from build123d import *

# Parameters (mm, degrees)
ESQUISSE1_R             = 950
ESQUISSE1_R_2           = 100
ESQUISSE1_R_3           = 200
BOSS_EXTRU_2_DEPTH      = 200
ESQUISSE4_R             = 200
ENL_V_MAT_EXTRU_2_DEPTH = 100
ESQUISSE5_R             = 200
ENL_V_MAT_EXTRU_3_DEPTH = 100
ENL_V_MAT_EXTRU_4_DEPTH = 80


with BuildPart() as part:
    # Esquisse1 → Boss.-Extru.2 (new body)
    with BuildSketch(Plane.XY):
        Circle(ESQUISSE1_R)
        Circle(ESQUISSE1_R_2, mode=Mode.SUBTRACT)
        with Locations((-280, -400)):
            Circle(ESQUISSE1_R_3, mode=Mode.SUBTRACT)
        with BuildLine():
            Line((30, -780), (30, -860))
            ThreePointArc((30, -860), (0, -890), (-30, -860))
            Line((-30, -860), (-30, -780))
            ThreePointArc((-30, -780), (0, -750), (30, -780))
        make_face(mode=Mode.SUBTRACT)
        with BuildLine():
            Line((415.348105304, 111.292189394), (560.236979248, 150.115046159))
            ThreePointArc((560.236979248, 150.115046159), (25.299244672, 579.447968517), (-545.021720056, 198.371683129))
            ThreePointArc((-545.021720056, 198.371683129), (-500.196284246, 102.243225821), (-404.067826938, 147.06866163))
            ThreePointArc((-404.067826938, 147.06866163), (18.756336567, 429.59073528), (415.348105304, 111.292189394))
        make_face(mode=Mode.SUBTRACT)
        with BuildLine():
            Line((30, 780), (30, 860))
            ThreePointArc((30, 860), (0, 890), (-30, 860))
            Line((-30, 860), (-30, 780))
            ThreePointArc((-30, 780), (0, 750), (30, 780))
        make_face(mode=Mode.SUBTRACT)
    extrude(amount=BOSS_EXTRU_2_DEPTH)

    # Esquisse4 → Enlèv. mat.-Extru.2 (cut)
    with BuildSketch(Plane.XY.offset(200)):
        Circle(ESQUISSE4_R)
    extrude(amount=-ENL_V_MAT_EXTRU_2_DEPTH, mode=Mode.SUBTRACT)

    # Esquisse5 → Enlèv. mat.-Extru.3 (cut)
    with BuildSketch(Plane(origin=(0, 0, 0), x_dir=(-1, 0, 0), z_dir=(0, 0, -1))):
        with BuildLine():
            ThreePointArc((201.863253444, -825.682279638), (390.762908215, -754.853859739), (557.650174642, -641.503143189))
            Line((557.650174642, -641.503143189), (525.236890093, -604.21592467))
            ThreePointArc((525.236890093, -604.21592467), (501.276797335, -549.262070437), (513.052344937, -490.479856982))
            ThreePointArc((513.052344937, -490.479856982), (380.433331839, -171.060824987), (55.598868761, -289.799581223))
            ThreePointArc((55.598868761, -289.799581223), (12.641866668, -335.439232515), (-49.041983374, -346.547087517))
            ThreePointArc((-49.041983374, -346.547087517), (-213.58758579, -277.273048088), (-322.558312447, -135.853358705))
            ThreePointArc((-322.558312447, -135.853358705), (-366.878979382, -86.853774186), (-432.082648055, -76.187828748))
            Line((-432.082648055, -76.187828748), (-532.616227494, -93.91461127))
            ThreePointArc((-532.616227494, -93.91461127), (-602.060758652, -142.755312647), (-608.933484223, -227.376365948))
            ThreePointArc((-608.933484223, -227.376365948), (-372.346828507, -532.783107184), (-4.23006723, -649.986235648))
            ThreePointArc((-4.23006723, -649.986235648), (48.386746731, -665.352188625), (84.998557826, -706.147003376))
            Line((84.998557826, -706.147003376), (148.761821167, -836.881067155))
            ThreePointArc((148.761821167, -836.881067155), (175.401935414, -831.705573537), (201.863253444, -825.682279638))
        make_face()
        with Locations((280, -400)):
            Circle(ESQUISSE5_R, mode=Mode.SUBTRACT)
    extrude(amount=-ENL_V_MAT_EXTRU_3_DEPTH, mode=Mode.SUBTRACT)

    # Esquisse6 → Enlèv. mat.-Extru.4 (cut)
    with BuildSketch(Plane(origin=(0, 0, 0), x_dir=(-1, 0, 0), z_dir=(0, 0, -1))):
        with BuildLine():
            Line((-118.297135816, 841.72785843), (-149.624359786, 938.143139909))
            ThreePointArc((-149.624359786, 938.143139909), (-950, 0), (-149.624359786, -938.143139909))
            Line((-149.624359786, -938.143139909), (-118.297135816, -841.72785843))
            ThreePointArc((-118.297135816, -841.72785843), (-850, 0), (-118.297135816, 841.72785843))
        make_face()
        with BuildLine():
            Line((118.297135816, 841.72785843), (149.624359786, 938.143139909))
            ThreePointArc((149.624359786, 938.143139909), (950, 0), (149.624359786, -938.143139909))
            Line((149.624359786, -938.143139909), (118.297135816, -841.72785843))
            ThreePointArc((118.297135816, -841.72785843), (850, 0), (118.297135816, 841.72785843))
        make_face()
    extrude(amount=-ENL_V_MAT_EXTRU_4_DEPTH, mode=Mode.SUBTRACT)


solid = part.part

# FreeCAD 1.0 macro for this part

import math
import FreeCAD as App
import Part
import Sketcher
Q = App.Units.Quantity

doc = App.newDocument("Part")
params = doc.addObject("Spreadsheet::Sheet", "Params")
for row, (alias, value) in enumerate([
    ("sketch1_diameter", "1900 mm"),
    ("sketch1_diameter2", "400 mm"),
    ("sketch1_diameter3", "200 mm"),
    ("sketch1_radius", "30 mm"),
    ("sketch1_radius2", "430 mm"),
    ("pad1_length", "200 mm"),
    ("sketch2_diameter", "400 mm"),
    ("pocket1_length", "100 mm"),
    ("sketch3_diameter", "400 mm"),
    ("sketch3_radius", "850 mm"),
    ("sketch3_radius2", "100 mm"),
    ("sketch3_radius3", "250 mm"),
    ("sketch3_radius4", "350 mm"),
    ("pocket2_length", "100 mm"),
    ("sketch4_radius", "950 mm"),
    ("sketch4_radius2", "850 mm"),
    ("pocket3_length", "80 mm"),
], start=1):
    params.set(f"A{row}", alias)
    params.set(f"B{row}", "=" + value)
    params.setAlias(f"B{row}", alias)

body = doc.addObject("PartDesign::Body", "Body")

sketch1 = doc.addObject("Sketcher::SketchObject", "Sketch")
body.addObject(sketch1)
sketch1.AttachmentSupport = (doc.XY_Plane, [""])
sketch1.MapMode = "FlatFace"
sketch1.addGeometry(Part.Circle(App.Vector(0, 0, 0), App.Vector(0, 0, 1), 950), False)
sketch1.addGeometry(Part.ArcOfCircle(Part.Circle(App.Vector(0, -780, 0), App.Vector(0, 0, 1), 30), math.radians(0), math.radians(180)), False)
sketch1.addGeometry(Part.LineSegment(App.Vector(30, -780, 0), App.Vector(30, -860, 0)), False)
sketch1.addGeometry(Part.ArcOfCircle(Part.Circle(App.Vector(0, -860, 0), App.Vector(0, 0, 1), 30), math.radians(180), math.radians(360)), False)
sketch1.addGeometry(Part.LineSegment(App.Vector(-30, -860, 0), App.Vector(-30, -780, 0)), False)
sketch1.addGeometry(Part.Circle(App.Vector(-280, -400, 0), App.Vector(0, 0, 1), 200), False)
sketch1.addGeometry(Part.Circle(App.Vector(0, 0, 0), App.Vector(0, 0, 1), 100), False)
sketch1.addGeometry(Part.LineSegment(App.Vector(30, 860, 0), App.Vector(30, 780, 0)), False)
sketch1.addGeometry(Part.ArcOfCircle(Part.Circle(App.Vector(0, 780, 0), App.Vector(0, 0, 1), 30), math.radians(180), math.radians(360)), False)
sketch1.addGeometry(Part.LineSegment(App.Vector(-30, 780, 0), App.Vector(-30, 860, 0)), False)
sketch1.addGeometry(Part.ArcOfCircle(Part.Circle(App.Vector(0, 860, 0), App.Vector(0, 0, 1), 30), math.radians(0), math.radians(180)), False)
sketch1.addGeometry(Part.LineSegment(App.Vector(560, 150, 0), App.Vector(415, 111, 0)), False)
sketch1.addGeometry(Part.ArcOfCircle(Part.Circle(App.Vector(0, 0, 0), App.Vector(0, 0, 1), 430), math.radians(15), math.radians(160)), False)
sketch1.addGeometry(Part.ArcOfCircle(Part.Circle(App.Vector(-475, 173, 0), App.Vector(0, 0, 1), 75), math.radians(160), math.radians(340)), False)
sketch1.addGeometry(Part.ArcOfCircle(Part.Circle(App.Vector(0, 0, 0), App.Vector(0, 0, 1), 580), math.radians(15), math.radians(160)), False)
sketch1.addConstraint(Sketcher.Constraint("Tangent", 1, 1, 2, 1))
sketch1.addConstraint(Sketcher.Constraint("Tangent", 2, 2, 3, 2))
sketch1.addConstraint(Sketcher.Constraint("Tangent", 3, 1, 4, 1))
sketch1.addConstraint(Sketcher.Constraint("Tangent", 4, 2, 1, 2))
sketch1.addConstraint(Sketcher.Constraint("Tangent", 7, 2, 8, 2))
sketch1.addConstraint(Sketcher.Constraint("Tangent", 8, 1, 9, 1))
sketch1.addConstraint(Sketcher.Constraint("Tangent", 9, 2, 10, 2))
sketch1.addConstraint(Sketcher.Constraint("Tangent", 10, 1, 7, 1))
sketch1.addConstraint(Sketcher.Constraint("Coincident", 11, 2, 12, 1))
sketch1.addConstraint(Sketcher.Constraint("Tangent", 12, 2, 13, 2))
sketch1.addConstraint(Sketcher.Constraint("Tangent", 13, 1, 14, 2))
sketch1.addConstraint(Sketcher.Constraint("Coincident", 14, 1, 11, 1))
sketch1.addConstraint(Sketcher.Constraint("Vertical", 2))
sketch1.addConstraint(Sketcher.Constraint("Vertical", 4))
sketch1.addConstraint(Sketcher.Constraint("Vertical", 7))
sketch1.addConstraint(Sketcher.Constraint("Vertical", 9))
sketch1.addConstraint(Sketcher.Constraint("Coincident", 0, 3, -1, 1))
sketch1.addConstraint(Sketcher.Constraint("Coincident", 6, 3, -1, 1))
sketch1.addConstraint(Sketcher.Constraint("Coincident", 12, 3, -1, 1))
sketch1.addConstraint(Sketcher.Constraint("Coincident", 14, 3, -1, 1))
sketch1.addConstraint(Sketcher.Constraint("Equal", 3, 8))
sketch1.addConstraint(Sketcher.Constraint("Symmetric", 1, 3, 8, 3, -1, 1))
sketch1.addConstraint(Sketcher.Constraint("Symmetric", 3, 3, 10, 3, -1))
sketch1.addConstraint(Sketcher.Constraint("Diameter", 0, 1900.0))
sketch1.addConstraint(Sketcher.Constraint("Diameter", 5, 400.0))
sketch1.addConstraint(Sketcher.Constraint("Diameter", 6, 200.0))
sketch1.addConstraint(Sketcher.Constraint("Radius", 1, 30.0))
sketch1.addConstraint(Sketcher.Constraint("Radius", 12, 430.0))
sketch1.addConstraint(Sketcher.Constraint("Radius", 13, 75.0))
sketch1.addConstraint(Sketcher.Constraint("DistanceY", 2, 2, 2, 1, 80.0))
sketch1.addConstraint(Sketcher.Constraint("Angle", 11, Q("-165 deg")))
sketch1.addConstraint(Sketcher.Constraint("DistanceY", 1, 3, -1, 1, 780.0))
sketch1.addConstraint(Sketcher.Constraint("DistanceX", 5, 3, -1, 1, 280.0))
sketch1.addConstraint(Sketcher.Constraint("DistanceY", 5, 3, -1, 1, 400.0))
sketch1.addConstraint(Sketcher.Constraint("DistanceY", -1, 1, 11, 2, 111.292189))
sketch1.addConstraint(Sketcher.Constraint("DistanceX", 13, 1, -1, 1, 545.02172))
sketch1.setExpression("Constraints[23]", "Params.sketch1_diameter")
sketch1.setExpression("Constraints[24]", "Params.sketch1_diameter2")
sketch1.setExpression("Constraints[25]", "Params.sketch1_diameter3")
sketch1.setExpression("Constraints[26]", "Params.sketch1_radius")
sketch1.setExpression("Constraints[27]", "Params.sketch1_radius2")
pad1 = doc.addObject("PartDesign::Pad", "Pad")
body.addObject(pad1)
pad1.Profile = sketch1
pad1.setExpression("Length", "Params.pad1_length")

sketch2 = doc.addObject("Sketcher::SketchObject", "Sketch001")
body.addObject(sketch2)
sketch2.AttachmentSupport = (doc.XY_Plane, [""])
sketch2.MapMode = "FlatFace"
sketch2.AttachmentOffset = App.Placement(App.Vector(0, 0, 200), App.Rotation())
sketch2.addGeometry(Part.Circle(App.Vector(0, 0, 0), App.Vector(0, 0, 1), 200), False)
sketch2.addConstraint(Sketcher.Constraint("Coincident", 0, 3, -1, 1))
sketch2.addConstraint(Sketcher.Constraint("Diameter", 0, 400.0))
sketch2.setExpression("Constraints[1]", "Params.sketch2_diameter")
pocket1 = doc.addObject("PartDesign::Pocket", "Pocket")
body.addObject(pocket1)
pocket1.Profile = sketch2
pocket1.setExpression("Length", "Params.pocket1_length")

sketch3 = doc.addObject("Sketcher::SketchObject", "Sketch002")
body.addObject(sketch3)
sketch3.AttachmentSupport = (doc.XY_Plane, [""])
sketch3.MapMode = "FlatFace"
sketch3.addGeometry(Part.ArcOfCircle(Part.Circle(App.Vector(0, 0, 0), App.Vector(0, 0, 1), 850), math.radians(-131), math.radians(-104)), False)
sketch3.addGeometry(Part.LineSegment(App.Vector(-558, -642, 0), App.Vector(-525, -604, 0)), False)
sketch3.addGeometry(Part.ArcOfCircle(Part.Circle(App.Vector(-601, -539, 0), App.Vector(0, 0, 1), 100), math.radians(-41), math.radians(29)), False)
sketch3.addGeometry(Part.ArcOfCircle(Part.Circle(App.Vector(-280, -400, 0), App.Vector(0, 0, 1), 250), math.radians(26), math.radians(201)), False)
sketch3.addGeometry(Part.ArcOfCircle(Part.Circle(App.Vector(35, -248, 0), App.Vector(0, 0, 1), 100), math.radians(-155), math.radians(-82)), False)
sketch3.addGeometry(Part.ArcOfCircle(Part.Circle(App.Vector(0, 0, 0), App.Vector(0, 0, 1), 350), math.radians(-82), math.radians(-23)), False)
sketch3.addGeometry(Part.ArcOfCircle(Part.Circle(App.Vector(415, -175, 0), App.Vector(0, 0, 1), 100), math.radians(80), math.radians(157)), False)
sketch3.addGeometry(Part.LineSegment(App.Vector(432, -76, 0), App.Vector(533, -94, 0)), False)
sketch3.addGeometry(Part.ArcOfCircle(Part.Circle(App.Vector(515, -192, 0), App.Vector(0, 0, 1), 100), math.radians(-20), math.radians(80)), False)
sketch3.addGeometry(Part.ArcOfCircle(Part.Circle(App.Vector(0, 0, 0), App.Vector(0, 0, 1), 650), math.radians(-90), math.radians(-20)), False)
sketch3.addGeometry(Part.ArcOfCircle(Part.Circle(App.Vector(5, -750, 0), App.Vector(0, 0, 1), 100), math.radians(90), math.radians(154)), False)
sketch3.addGeometry(Part.LineSegment(App.Vector(-85, -706, 0), App.Vector(-149, -837, 0)), False)
sketch3.addGeometry(Part.ArcOfCircle(Part.Circle(App.Vector(0, 0, 0), App.Vector(0, 0, 1), 850), math.radians(-103.74), math.radians(-100.08)), False)
sketch3.addGeometry(Part.Circle(App.Vector(-280, -400, 0), App.Vector(0, 0, 1), 200), False)
sketch3.addConstraint(Sketcher.Constraint("Coincident", 0, 1, 1, 1))
sketch3.addConstraint(Sketcher.Constraint("Tangent", 1, 2, 2, 1))
sketch3.addConstraint(Sketcher.Constraint("Coincident", 2, 2, 3, 2))
sketch3.addConstraint(Sketcher.Constraint("Coincident", 3, 1, 4, 1))
sketch3.addConstraint(Sketcher.Constraint("Tangent", 4, 2, 5, 1))
sketch3.addConstraint(Sketcher.Constraint("Tangent", 5, 2, 6, 2))
sketch3.addConstraint(Sketcher.Constraint("Tangent", 6, 1, 7, 1))
sketch3.addConstraint(Sketcher.Constraint("Tangent", 7, 2, 8, 2))
sketch3.addConstraint(Sketcher.Constraint("Tangent", 8, 1, 9, 2))
sketch3.addConstraint(Sketcher.Constraint("Tangent", 9, 1, 10, 1))
sketch3.addConstraint(Sketcher.Constraint("Tangent", 10, 2, 11, 1))
sketch3.addConstraint(Sketcher.Constraint("Coincident", 11, 2, 12, 2))
sketch3.addConstraint(Sketcher.Constraint("Coincident", 12, 1, 0, 2))
sketch3.addConstraint(Sketcher.Constraint("Coincident", 0, 3, -1, 1))
sketch3.addConstraint(Sketcher.Constraint("Coincident", 5, 3, -1, 1))
sketch3.addConstraint(Sketcher.Constraint("Coincident", 9, 3, -1, 1))
sketch3.addConstraint(Sketcher.Constraint("Coincident", 12, 3, -1, 1))
sketch3.addConstraint(Sketcher.Constraint("Coincident", 13, 3, 3, 3))
sketch3.addConstraint(Sketcher.Constraint("Equal", 2, 4))
sketch3.addConstraint(Sketcher.Constraint("Equal", 4, 6))
sketch3.addConstraint(Sketcher.Constraint("Equal", 6, 8))
sketch3.addConstraint(Sketcher.Constraint("Equal", 8, 10))
sketch3.addConstraint(Sketcher.Constraint("Diameter", 13, 400.0))
sketch3.addConstraint(Sketcher.Constraint("Radius", 0, 850.0))
sketch3.addConstraint(Sketcher.Constraint("Radius", 2, 100.0))
sketch3.addConstraint(Sketcher.Constraint("Radius", 3, 250.0))
sketch3.addConstraint(Sketcher.Constraint("Radius", 5, 350.0))
sketch3.addConstraint(Sketcher.Constraint("Radius", 9, 650.0))
sketch3.addConstraint(Sketcher.Constraint("Angle", 1, Q("49 deg")))
sketch3.addConstraint(Sketcher.Constraint("Angle", 7, Q("-10 deg")))
sketch3.addConstraint(Sketcher.Constraint("Angle", 11, Q("-116 deg")))
sketch3.addConstraint(Sketcher.Constraint("DistanceX", 3, 3, -1, 1, 280.0))
sketch3.addConstraint(Sketcher.Constraint("DistanceY", 3, 3, -1, 1, 400.0))
sketch3.addConstraint(Sketcher.Constraint("DistanceX", 12, 1, 10, 3, 206.7441))
sketch3.addConstraint(Sketcher.Constraint("Distance", 1, 49.406049))
sketch3.addConstraint(Sketcher.Constraint("Distance", 7, 102.084472))
sketch3.addConstraint(Sketcher.Constraint("DistanceX", 2, 3, -1, 1, 600.707848))
sketch3.addConstraint(Sketcher.Constraint("DistanceX", -1, 1, 4, 3, 35.029988))
sketch3.addConstraint(Sketcher.Constraint("DistanceY", 10, 3, -1, 1, 749.984118))
sketch3.setExpression("Constraints[22]", "Params.sketch3_diameter")
sketch3.setExpression("Constraints[23]", "Params.sketch3_radius")
sketch3.setExpression("Constraints[24]", "Params.sketch3_radius2")
sketch3.setExpression("Constraints[25]", "Params.sketch3_radius3")
sketch3.setExpression("Constraints[26]", "Params.sketch3_radius4")
pocket2 = doc.addObject("PartDesign::Pocket", "Pocket001")
body.addObject(pocket2)
pocket2.Profile = sketch3
pocket2.setExpression("Length", "Params.pocket2_length")
pocket2.Reversed = True

sketch4 = doc.addObject("Sketcher::SketchObject", "Sketch003")
body.addObject(sketch4)
sketch4.AttachmentSupport = (doc.XY_Plane, [""])
sketch4.MapMode = "FlatFace"
sketch4.addGeometry(Part.LineSegment(App.Vector(118, 842, 0), App.Vector(150, 938, 0)), False)
sketch4.addGeometry(Part.ArcOfCircle(Part.Circle(App.Vector(0, 0, 0), App.Vector(0, 0, 1), 950), math.radians(-81), math.radians(81)), False)
sketch4.addGeometry(Part.LineSegment(App.Vector(150, -938, 0), App.Vector(118, -842, 0)), False)
sketch4.addGeometry(Part.ArcOfCircle(Part.Circle(App.Vector(0, 0, 0), App.Vector(0, 0, 1), 850), math.radians(-82), math.radians(82)), False)
sketch4.addGeometry(Part.LineSegment(App.Vector(-150, 938, 0), App.Vector(-118, 842, 0)), False)
sketch4.addGeometry(Part.ArcOfCircle(Part.Circle(App.Vector(0, 0, 0), App.Vector(0, 0, 1), 850), math.radians(98), math.radians(262)), False)
sketch4.addGeometry(Part.LineSegment(App.Vector(-118, -842, 0), App.Vector(-150, -938, 0)), False)
sketch4.addGeometry(Part.ArcOfCircle(Part.Circle(App.Vector(0, 0, 0), App.Vector(0, 0, 1), 950), math.radians(99), math.radians(261)), False)
sketch4.addConstraint(Sketcher.Constraint("Coincident", 0, 2, 1, 2))
sketch4.addConstraint(Sketcher.Constraint("Coincident", 1, 1, 2, 1))
sketch4.addConstraint(Sketcher.Constraint("Coincident", 2, 2, 3, 1))
sketch4.addConstraint(Sketcher.Constraint("Coincident", 3, 2, 0, 1))
sketch4.addConstraint(Sketcher.Constraint("Coincident", 4, 2, 5, 1))
sketch4.addConstraint(Sketcher.Constraint("Coincident", 5, 2, 6, 1))
sketch4.addConstraint(Sketcher.Constraint("Coincident", 6, 2, 7, 2))
sketch4.addConstraint(Sketcher.Constraint("Coincident", 7, 1, 4, 1))
sketch4.addConstraint(Sketcher.Constraint("Coincident", 1, 3, -1, 1))
sketch4.addConstraint(Sketcher.Constraint("Coincident", 3, 3, -1, 1))
sketch4.addConstraint(Sketcher.Constraint("Coincident", 5, 3, -1, 1))
sketch4.addConstraint(Sketcher.Constraint("Coincident", 7, 3, -1, 1))
sketch4.addConstraint(Sketcher.Constraint("Equal", 3, 5))
sketch4.addConstraint(Sketcher.Constraint("Equal", 1, 7))
sketch4.addConstraint(Sketcher.Constraint("Parallel", 2, 4))
sketch4.addConstraint(Sketcher.Constraint("Parallel", 0, 6))
sketch4.addConstraint(Sketcher.Constraint("Equal", 0, 2))
sketch4.addConstraint(Sketcher.Constraint("Equal", 2, 4))
sketch4.addConstraint(Sketcher.Constraint("Equal", 4, 6))
sketch4.addConstraint(Sketcher.Constraint("Radius", 1, 950.0))
sketch4.addConstraint(Sketcher.Constraint("Radius", 3, 850.0))
sketch4.addConstraint(Sketcher.Constraint("Angle", 0, Q("72 deg")))
sketch4.addConstraint(Sketcher.Constraint("Angle", 2, Q("108 deg")))
sketch4.addConstraint(Sketcher.Constraint("DistanceX", -1, 1, 0, 2, 149.62436))
sketch4.setExpression("Constraints[19]", "Params.sketch4_radius")
sketch4.setExpression("Constraints[20]", "Params.sketch4_radius2")
pocket3 = doc.addObject("PartDesign::Pocket", "Pocket002")
body.addObject(pocket3)
pocket3.Profile = sketch4
pocket3.setExpression("Length", "Params.pocket3_length")
pocket3.Reversed = True

doc.recompute()
